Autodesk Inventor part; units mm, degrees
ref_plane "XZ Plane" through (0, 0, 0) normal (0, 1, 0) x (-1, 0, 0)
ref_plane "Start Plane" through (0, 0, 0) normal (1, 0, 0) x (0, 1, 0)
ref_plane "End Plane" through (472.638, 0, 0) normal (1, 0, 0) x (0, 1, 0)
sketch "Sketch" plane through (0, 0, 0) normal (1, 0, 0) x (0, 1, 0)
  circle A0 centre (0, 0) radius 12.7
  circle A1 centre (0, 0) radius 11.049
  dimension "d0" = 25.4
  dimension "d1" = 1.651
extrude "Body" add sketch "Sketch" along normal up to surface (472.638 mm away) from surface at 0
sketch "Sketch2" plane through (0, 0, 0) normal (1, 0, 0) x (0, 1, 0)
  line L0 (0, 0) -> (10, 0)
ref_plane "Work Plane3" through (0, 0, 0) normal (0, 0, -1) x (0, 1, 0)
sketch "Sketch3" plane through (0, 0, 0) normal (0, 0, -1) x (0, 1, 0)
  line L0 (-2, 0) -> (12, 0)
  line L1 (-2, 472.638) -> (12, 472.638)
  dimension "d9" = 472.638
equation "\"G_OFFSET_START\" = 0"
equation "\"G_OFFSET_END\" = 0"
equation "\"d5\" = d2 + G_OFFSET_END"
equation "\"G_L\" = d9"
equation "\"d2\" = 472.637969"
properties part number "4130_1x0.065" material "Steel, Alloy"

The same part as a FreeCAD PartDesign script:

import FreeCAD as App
import Part
import Sketcher
Q = App.Units.Quantity

doc = App.newDocument("Part")
body = doc.addObject("PartDesign::Body", "Body")

sketch1 = body.newObject("Sketcher::SketchObject", "Sketch")
sketch1.AttachmentSupport = (doc.getObject("YZ_Plane"), [""])
sketch1.MapMode = "FlatFace"
sketch1.addGeometry([
    Part.Circle(App.Vector(0, 0, 0), App.Vector(0, 0, 1), 13),
    Part.Circle(App.Vector(0, 0, 0), App.Vector(0, 0, 1), 11),
], False)
sketch1.addConstraint([
    Sketcher.Constraint("Coincident", 0, 3, -1, 1),
    Sketcher.Constraint("Coincident", 1, 3, -1, 1),
    Sketcher.Constraint("Diameter", 0, Q("1 in")),
    Sketcher.Constraint("Diameter", 1, Q("0.87 in")),
])
pad1 = body.newObject("PartDesign::Pad", "Pad")
pad1.Profile = sketch1
pad1.Length = Q("18.6077953 in")

doc.recompute()
